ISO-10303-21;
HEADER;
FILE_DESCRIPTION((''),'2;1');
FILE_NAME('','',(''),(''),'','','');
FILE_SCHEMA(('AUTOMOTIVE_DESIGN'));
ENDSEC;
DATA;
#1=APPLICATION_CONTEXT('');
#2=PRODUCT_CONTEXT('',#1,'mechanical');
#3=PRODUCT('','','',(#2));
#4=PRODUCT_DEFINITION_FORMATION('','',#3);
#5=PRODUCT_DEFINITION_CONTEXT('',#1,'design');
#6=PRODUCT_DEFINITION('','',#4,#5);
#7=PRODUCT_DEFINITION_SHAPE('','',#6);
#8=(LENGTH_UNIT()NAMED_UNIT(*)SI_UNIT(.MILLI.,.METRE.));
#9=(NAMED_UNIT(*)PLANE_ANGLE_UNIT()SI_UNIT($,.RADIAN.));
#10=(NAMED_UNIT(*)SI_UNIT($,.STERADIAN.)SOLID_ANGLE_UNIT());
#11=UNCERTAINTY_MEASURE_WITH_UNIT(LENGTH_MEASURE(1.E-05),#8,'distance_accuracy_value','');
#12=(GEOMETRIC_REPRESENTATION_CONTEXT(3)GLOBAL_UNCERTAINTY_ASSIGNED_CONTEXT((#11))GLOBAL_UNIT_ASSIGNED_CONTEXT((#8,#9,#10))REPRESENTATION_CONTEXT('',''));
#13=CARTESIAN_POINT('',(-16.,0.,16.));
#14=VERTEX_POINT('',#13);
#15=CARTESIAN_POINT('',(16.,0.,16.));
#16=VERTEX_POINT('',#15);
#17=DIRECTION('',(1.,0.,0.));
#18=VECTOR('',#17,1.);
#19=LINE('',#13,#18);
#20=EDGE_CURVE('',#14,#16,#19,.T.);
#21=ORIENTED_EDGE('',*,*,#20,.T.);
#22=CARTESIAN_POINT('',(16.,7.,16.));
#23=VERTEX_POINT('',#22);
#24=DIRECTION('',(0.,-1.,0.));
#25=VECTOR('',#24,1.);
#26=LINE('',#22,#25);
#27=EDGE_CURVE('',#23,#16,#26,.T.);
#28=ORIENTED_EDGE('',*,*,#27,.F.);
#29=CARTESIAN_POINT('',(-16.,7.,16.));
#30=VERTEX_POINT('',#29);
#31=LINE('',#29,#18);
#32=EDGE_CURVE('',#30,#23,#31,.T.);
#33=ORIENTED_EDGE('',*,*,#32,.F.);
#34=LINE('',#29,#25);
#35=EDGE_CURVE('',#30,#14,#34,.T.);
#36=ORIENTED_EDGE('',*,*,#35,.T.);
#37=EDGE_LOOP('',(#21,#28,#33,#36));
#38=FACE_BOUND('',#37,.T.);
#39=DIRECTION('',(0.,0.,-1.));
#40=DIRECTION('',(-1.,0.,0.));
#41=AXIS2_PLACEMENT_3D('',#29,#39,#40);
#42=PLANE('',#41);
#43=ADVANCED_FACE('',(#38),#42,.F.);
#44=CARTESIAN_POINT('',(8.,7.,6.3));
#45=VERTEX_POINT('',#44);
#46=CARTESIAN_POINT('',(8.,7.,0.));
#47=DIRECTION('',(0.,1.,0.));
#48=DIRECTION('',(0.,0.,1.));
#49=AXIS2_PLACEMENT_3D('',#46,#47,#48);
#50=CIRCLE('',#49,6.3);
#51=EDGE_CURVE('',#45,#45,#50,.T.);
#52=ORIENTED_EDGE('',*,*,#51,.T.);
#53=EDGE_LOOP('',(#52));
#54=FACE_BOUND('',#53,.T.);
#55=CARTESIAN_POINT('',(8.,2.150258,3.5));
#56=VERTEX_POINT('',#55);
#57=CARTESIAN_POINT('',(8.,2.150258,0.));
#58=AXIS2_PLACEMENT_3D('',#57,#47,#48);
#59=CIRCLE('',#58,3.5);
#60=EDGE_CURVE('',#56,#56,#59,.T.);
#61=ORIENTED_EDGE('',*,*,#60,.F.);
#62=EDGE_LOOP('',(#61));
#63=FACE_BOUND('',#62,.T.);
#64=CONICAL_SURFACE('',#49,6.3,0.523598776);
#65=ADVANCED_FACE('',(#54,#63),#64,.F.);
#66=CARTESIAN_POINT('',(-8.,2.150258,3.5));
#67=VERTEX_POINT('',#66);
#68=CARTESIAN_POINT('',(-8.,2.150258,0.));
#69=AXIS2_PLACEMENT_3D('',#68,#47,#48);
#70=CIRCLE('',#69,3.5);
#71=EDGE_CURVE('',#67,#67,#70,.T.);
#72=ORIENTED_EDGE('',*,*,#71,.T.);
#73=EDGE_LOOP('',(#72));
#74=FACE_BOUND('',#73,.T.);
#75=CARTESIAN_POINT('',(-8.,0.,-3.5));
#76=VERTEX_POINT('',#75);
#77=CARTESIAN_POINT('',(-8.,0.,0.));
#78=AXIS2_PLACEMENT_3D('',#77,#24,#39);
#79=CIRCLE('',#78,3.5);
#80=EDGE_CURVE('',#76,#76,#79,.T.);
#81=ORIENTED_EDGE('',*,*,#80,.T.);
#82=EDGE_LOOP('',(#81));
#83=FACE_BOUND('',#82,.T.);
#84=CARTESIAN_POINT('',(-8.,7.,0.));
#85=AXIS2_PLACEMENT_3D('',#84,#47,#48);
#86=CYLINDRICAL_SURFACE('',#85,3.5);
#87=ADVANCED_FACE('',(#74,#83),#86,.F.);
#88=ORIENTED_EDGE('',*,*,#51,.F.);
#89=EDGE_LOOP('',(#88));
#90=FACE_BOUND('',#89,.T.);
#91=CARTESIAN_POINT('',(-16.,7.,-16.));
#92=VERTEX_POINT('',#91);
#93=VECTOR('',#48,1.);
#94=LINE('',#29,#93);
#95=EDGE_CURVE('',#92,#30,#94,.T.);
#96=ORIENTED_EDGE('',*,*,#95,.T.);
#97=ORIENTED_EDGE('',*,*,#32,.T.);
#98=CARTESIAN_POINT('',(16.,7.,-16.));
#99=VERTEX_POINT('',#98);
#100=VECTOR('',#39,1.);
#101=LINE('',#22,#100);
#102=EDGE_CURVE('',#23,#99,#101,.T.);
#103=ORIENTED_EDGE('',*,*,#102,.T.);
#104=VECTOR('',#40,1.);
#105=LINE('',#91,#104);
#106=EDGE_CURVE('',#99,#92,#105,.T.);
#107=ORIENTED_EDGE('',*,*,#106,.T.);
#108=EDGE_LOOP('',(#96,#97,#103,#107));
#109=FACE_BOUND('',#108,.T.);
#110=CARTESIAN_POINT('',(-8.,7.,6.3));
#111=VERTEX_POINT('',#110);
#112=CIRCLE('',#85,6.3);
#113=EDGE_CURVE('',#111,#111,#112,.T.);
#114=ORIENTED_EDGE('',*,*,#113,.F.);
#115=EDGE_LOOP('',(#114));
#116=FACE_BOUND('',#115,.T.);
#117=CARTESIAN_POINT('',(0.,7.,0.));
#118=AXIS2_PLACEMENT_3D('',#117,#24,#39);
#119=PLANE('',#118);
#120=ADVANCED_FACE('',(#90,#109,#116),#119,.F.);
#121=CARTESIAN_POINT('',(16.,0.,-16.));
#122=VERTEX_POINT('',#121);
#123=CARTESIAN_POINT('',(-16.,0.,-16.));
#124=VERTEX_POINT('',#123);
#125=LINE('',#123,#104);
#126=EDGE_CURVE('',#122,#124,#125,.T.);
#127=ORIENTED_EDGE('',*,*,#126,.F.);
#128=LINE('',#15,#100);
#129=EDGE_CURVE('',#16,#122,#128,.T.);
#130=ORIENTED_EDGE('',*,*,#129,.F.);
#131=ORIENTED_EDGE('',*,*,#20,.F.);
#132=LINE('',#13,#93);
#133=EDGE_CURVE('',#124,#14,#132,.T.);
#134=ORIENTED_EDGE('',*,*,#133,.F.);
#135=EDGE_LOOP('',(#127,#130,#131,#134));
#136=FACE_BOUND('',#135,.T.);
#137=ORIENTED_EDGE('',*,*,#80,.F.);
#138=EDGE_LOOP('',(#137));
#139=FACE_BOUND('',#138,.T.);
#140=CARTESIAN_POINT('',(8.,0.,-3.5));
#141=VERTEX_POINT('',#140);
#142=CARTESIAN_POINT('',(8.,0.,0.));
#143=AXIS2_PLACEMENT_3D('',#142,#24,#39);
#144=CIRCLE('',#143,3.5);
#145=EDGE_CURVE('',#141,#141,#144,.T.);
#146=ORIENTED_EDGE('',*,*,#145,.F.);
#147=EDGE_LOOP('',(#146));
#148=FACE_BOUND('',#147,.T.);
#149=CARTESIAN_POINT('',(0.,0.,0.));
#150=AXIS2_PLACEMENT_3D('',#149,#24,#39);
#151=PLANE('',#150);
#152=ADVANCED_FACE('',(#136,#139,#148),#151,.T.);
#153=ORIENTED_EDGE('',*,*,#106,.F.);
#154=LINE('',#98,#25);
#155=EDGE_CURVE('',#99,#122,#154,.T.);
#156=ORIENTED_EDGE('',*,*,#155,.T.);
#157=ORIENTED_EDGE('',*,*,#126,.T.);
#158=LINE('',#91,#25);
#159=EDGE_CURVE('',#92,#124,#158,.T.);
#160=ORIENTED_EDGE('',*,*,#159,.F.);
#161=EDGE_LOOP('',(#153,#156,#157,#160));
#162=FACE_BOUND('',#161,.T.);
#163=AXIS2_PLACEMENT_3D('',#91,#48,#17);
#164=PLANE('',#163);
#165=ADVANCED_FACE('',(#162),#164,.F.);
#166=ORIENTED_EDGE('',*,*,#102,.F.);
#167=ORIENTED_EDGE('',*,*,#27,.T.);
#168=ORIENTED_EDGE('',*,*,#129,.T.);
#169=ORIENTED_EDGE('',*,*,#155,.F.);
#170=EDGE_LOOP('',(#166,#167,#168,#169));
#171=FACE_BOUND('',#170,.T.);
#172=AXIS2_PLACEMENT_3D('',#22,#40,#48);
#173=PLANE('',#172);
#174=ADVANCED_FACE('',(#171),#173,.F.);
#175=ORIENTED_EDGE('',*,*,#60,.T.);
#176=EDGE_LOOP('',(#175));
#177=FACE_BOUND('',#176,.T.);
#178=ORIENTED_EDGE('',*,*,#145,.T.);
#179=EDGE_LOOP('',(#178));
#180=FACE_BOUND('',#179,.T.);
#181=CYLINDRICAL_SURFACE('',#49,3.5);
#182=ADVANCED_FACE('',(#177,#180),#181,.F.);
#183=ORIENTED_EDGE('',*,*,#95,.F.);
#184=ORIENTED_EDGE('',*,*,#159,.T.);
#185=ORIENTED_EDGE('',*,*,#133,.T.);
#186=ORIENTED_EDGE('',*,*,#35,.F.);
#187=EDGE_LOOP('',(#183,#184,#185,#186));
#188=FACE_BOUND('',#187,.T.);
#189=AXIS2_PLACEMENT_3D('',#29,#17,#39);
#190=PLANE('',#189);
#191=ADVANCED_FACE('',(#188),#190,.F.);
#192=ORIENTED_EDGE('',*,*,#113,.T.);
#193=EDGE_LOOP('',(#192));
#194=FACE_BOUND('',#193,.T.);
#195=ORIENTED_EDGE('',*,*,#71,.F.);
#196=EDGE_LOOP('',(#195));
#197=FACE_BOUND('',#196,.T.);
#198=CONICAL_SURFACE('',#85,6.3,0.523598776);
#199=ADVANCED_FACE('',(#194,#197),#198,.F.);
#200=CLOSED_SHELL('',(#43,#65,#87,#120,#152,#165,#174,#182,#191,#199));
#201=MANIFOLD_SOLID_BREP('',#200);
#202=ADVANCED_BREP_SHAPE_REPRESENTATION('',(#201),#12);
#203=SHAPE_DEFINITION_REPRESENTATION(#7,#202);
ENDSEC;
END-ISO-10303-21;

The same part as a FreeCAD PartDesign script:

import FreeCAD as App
import Part
import Sketcher

V = App.Vector
Q = App.Units.Quantity

doc = App.newDocument("Part")
body = doc.addObject("PartDesign::Body", "Body")

sketch1 = body.newObject("Sketcher::SketchObject", "Sketch")
sketch1.AttachmentSupport = (doc.getObject("XZ_Plane"), [""])
sketch1.MapMode = "FlatFace"
sketch1.addGeometry(Part.LineSegment(V(-16, -16, 0), V(-16, 16, 0)), False)
sketch1.addGeometry(Part.LineSegment(V(-16, 16, 0), V(16, 16, 0)), False)
sketch1.addGeometry(Part.LineSegment(V(16, 16, 0), V(16, -16, 0)), False)
sketch1.addGeometry(Part.LineSegment(V(16, -16, 0), V(-16, -16, 0)), False)
sketch1.addConstraint(Sketcher.Constraint("Coincident", 0, 2, 1, 1))
sketch1.addConstraint(Sketcher.Constraint("Coincident", 1, 2, 2, 1))
sketch1.addConstraint(Sketcher.Constraint("Coincident", 2, 2, 3, 1))
sketch1.addConstraint(Sketcher.Constraint("Coincident", 3, 2, 0, 1))
sketch1.addConstraint(Sketcher.Constraint("Vertical", 0))
sketch1.addConstraint(Sketcher.Constraint("Horizontal", 1))
sketch1.addConstraint(Sketcher.Constraint("Vertical", 2))
sketch1.addConstraint(Sketcher.Constraint("Horizontal", 3))
sketch1.addConstraint(Sketcher.Constraint("Symmetric", 0, 2, 2, 2, -1, 1))
sketch1.addConstraint(Sketcher.Constraint("Equal", 3, 0))
sketch1.addConstraint(Sketcher.Constraint("DistanceX", 1, 1, 1, 2, 32.0))
pad1 = body.newObject("PartDesign::Pad", "Pad")
pad1.Profile = sketch1
pad1.Length = 7
pad1.Reversed = True

sketch2 = body.newObject("Sketcher::SketchObject", "Sketch001")
sketch2.AttachmentSupport = (doc.getObject("YZ_Plane"), [""])
sketch2.MapMode = "FlatFace"
sketch2.AttachmentOffset = App.Placement(V(0, 0, -8), App.Rotation())
sketch2.addGeometry(Part.LineSegment(V(0, 0, 0), V(7, 0, 0)), False)
sketch2.addGeometry(Part.LineSegment(V(7, 0, 0), V(7, 6.3, 0)), False)
sketch2.addGeometry(Part.LineSegment(V(7, 6.3, 0), V(2.150258, 3.5, 0)), False)
sketch2.addGeometry(Part.LineSegment(V(2.150258, 3.5, 0), V(0, 3.5, 0)), False)
sketch2.addGeometry(Part.LineSegment(V(0, 3.5, 0), V(0, 0, 0)), False)
sketch2.addConstraint(Sketcher.Constraint("Coincident", 0, 2, 1, 1))
sketch2.addConstraint(Sketcher.Constraint("Coincident", 1, 2, 2, 1))
sketch2.addConstraint(Sketcher.Constraint("Coincident", 2, 2, 3, 1))
sketch2.addConstraint(Sketcher.Constraint("Coincident", 3, 2, 4, 1))
sketch2.addConstraint(Sketcher.Constraint("Coincident", 4, 2, 0, 1))
sketch2.addConstraint(Sketcher.Constraint("Horizontal", 0))
sketch2.addConstraint(Sketcher.Constraint("Vertical", 1))
sketch2.addConstraint(Sketcher.Constraint("Horizontal", 3))
sketch2.addConstraint(Sketcher.Constraint("Vertical", 4))
sketch2.addConstraint(Sketcher.Constraint("Coincident", 4, 2, -1, 1))
sketch2.addConstraint(Sketcher.Constraint("DistanceX", 0, 1, 0, 2, 7.0))
sketch2.addConstraint(Sketcher.Constraint("Angle", 2, Q("-150 deg")))
sketch2.addConstraint(Sketcher.Constraint("DistanceY", 1, 1, 1, 2, 6.3))
sketch2.addConstraint(Sketcher.Constraint("DistanceY", 4, 2, 4, 1, 3.5))
groove = body.newObject("PartDesign::Groove", "Groove")
groove.Profile = sketch2
groove.ReferenceAxis = (sketch2, ["H_Axis"])
groove.Angle = 360
doc.recompute()

linearpattern = body.newObject("PartDesign::LinearPattern", "LinearPattern")
linearpattern.Originals = [groove]
linearpattern.Direction = (doc.getObject("X_Axis"), [""])
linearpattern.Mode = "offset"
linearpattern.Offset = 16
linearpattern.Occurrences = 2
body.Tip = linearpattern

doc.recompute()
